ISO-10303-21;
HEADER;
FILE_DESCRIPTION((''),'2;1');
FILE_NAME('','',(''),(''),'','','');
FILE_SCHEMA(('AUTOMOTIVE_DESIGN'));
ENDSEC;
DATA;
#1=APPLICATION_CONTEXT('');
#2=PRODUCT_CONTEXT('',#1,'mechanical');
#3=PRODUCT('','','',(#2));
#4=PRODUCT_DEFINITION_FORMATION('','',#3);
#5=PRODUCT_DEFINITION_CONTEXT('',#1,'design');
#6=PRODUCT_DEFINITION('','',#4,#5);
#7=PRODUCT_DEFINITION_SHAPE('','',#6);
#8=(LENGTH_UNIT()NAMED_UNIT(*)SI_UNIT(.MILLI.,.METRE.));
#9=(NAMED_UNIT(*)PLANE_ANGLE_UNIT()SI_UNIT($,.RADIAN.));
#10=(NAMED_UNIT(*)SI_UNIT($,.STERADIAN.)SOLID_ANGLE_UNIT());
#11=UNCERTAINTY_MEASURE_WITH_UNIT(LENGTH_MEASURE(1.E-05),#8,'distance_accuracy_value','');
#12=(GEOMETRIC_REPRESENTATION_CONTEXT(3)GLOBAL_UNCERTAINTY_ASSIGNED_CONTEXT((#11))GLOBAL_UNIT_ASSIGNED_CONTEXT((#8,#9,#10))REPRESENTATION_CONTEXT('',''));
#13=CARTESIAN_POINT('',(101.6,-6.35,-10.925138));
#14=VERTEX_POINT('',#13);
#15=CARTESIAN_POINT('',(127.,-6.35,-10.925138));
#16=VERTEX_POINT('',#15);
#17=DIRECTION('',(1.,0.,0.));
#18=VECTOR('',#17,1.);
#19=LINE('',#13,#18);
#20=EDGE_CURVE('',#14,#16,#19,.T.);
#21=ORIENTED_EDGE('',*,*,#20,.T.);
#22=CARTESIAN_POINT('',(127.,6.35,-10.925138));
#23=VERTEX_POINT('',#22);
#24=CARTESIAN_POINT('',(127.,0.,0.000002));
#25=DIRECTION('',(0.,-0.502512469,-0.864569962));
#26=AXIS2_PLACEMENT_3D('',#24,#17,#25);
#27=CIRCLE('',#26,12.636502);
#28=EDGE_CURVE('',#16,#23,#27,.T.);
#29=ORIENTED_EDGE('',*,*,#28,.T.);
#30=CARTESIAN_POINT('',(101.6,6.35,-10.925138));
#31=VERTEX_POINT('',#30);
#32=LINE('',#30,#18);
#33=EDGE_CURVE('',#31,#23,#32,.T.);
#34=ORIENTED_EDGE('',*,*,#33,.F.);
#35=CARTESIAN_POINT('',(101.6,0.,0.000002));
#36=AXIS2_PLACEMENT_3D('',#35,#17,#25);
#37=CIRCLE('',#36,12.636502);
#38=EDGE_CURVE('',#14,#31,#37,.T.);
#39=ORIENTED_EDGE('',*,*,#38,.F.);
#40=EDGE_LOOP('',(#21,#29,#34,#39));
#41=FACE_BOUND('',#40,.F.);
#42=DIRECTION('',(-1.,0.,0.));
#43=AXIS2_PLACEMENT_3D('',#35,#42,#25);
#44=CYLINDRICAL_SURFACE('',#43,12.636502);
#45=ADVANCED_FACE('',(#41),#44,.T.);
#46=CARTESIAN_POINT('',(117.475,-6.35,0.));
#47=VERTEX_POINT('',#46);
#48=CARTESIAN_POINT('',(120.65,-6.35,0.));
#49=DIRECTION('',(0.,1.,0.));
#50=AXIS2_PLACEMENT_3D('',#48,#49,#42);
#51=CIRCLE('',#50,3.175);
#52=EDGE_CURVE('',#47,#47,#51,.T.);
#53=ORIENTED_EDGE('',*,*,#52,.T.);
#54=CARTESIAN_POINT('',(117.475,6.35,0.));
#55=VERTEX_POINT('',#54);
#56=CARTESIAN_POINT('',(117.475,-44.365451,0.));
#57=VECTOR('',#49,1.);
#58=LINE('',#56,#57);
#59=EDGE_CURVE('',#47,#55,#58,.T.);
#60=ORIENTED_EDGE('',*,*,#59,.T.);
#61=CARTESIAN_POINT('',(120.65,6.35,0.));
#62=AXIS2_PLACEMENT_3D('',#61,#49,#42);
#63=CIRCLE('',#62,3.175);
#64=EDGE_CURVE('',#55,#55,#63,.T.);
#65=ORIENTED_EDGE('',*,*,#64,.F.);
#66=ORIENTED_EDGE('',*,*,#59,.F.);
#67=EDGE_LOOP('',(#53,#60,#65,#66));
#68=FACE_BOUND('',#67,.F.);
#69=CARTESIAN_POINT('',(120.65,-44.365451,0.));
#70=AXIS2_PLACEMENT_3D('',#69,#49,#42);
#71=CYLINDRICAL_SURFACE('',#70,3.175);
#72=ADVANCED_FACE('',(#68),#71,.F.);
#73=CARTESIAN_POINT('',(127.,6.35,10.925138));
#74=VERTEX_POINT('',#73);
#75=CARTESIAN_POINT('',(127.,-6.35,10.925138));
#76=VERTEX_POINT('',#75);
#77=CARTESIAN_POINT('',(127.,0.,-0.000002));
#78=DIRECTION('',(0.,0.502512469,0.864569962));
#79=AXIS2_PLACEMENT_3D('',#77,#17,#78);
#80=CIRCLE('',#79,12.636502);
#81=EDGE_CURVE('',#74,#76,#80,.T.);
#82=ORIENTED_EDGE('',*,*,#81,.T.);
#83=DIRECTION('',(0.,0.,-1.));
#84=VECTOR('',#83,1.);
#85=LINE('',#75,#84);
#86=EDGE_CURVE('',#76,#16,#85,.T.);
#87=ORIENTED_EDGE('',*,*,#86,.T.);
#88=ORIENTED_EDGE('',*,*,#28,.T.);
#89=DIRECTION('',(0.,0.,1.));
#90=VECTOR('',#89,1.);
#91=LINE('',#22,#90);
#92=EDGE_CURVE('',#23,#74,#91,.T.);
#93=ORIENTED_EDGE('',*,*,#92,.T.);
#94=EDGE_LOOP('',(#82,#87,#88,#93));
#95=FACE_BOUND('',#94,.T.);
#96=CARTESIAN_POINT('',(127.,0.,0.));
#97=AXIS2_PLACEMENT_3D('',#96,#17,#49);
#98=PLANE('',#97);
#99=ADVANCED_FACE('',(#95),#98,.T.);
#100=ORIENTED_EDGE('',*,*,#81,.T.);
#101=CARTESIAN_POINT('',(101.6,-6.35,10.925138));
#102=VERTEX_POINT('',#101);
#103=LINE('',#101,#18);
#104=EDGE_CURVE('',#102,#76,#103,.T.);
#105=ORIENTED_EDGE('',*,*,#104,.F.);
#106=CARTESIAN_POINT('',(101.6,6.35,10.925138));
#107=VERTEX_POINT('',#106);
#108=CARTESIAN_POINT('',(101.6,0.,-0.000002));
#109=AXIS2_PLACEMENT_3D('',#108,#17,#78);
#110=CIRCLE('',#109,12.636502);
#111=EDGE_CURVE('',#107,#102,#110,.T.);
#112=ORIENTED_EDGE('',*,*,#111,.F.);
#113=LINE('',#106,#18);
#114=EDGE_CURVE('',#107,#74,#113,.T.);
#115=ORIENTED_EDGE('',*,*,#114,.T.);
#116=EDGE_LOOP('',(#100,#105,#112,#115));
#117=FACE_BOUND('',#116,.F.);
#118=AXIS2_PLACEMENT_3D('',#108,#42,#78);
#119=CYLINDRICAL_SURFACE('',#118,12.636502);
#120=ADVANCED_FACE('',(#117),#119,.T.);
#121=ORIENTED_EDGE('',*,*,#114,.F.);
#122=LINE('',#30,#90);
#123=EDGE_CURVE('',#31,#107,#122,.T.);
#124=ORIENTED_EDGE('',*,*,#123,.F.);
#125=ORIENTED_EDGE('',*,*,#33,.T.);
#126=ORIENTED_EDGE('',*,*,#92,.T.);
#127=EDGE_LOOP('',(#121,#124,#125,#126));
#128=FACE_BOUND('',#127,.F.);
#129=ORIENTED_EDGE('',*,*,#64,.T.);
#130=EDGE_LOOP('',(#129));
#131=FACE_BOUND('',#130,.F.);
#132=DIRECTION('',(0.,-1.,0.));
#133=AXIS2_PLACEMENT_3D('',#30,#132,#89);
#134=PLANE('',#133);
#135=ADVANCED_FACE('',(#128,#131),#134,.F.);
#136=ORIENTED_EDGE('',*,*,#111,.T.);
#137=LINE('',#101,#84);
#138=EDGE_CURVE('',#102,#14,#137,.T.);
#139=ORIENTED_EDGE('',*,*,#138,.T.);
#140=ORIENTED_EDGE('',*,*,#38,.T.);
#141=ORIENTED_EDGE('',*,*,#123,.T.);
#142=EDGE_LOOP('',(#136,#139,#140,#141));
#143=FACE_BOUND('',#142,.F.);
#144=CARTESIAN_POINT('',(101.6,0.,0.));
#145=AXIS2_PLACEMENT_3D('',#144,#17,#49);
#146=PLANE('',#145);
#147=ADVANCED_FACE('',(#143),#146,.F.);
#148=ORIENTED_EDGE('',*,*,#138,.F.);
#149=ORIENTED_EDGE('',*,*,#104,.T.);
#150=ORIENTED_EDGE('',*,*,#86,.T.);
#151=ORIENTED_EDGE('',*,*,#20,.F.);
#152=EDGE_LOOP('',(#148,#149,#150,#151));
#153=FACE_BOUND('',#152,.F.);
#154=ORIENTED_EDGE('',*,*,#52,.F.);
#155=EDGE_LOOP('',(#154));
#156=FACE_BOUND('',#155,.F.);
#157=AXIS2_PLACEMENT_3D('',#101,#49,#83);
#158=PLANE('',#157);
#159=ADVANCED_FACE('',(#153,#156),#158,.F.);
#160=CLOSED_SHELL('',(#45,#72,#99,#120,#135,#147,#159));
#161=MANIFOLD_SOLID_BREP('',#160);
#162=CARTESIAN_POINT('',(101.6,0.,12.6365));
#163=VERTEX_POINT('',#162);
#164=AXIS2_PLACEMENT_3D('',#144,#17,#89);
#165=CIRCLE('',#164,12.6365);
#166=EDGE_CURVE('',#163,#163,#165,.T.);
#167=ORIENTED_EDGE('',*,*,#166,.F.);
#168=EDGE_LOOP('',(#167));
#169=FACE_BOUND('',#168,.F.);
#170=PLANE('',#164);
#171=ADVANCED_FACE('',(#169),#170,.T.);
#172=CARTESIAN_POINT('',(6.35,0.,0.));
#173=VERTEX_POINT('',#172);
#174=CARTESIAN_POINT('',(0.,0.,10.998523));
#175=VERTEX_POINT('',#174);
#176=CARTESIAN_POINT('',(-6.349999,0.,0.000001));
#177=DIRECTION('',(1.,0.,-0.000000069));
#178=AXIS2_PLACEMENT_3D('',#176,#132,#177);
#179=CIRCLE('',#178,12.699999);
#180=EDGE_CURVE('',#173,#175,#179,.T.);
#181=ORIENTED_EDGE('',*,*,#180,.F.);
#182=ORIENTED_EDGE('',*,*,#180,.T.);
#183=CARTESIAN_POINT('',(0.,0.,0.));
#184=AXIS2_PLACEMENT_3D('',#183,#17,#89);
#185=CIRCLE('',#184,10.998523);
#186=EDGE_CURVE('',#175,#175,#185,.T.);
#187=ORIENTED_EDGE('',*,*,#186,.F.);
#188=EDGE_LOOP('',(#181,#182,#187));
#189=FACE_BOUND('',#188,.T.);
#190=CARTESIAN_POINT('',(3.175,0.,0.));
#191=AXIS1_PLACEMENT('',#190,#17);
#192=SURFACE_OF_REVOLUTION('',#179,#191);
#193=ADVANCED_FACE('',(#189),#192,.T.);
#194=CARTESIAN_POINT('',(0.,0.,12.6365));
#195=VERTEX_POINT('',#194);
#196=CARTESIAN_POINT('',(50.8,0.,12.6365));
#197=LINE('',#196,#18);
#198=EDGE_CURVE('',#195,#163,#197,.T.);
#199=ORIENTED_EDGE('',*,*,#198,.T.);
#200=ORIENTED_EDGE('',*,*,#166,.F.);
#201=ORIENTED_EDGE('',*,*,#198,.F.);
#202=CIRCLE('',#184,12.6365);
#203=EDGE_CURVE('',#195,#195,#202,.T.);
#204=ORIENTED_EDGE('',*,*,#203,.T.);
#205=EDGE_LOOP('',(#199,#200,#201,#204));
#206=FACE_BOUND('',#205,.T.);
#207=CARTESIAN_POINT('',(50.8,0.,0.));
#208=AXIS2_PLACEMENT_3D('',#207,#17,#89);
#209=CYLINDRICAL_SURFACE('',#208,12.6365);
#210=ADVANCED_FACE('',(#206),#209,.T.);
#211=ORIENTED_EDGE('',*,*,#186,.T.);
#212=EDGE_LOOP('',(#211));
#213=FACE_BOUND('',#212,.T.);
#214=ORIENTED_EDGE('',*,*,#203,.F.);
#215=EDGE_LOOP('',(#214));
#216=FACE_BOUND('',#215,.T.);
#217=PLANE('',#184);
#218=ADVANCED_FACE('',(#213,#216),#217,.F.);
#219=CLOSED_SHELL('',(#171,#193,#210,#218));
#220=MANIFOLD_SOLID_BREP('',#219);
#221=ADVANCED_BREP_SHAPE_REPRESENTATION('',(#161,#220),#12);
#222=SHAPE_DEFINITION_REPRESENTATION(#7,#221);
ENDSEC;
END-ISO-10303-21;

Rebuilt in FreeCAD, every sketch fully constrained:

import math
import FreeCAD as App
import Part
import Sketcher
from FreeCAD import Vector
Q = App.Units.Quantity

doc = App.newDocument("Part")
body = doc.addObject("PartDesign::Body", "Body")

# Sketch on XZ plane
sketch1 = doc.addObject("Sketcher::SketchObject", "Sketch")
body.addObject(sketch1)
sketch1.AttachmentSupport = (doc.XZ_Plane, [""])
sketch1.MapMode = "FlatFace"
sketch1.addGeometry([
    Part.LineSegment(Vector(0, 13, 0), Vector(0, 0, 0)),
    Part.LineSegment(Vector(0, 0, 0), Vector(102, 0, 0)),
    Part.LineSegment(Vector(102, 0, 0), Vector(102, 13, 0)),
    Part.LineSegment(Vector(102, 13, 0), Vector(0, 13, 0)),
], False)
sketch1.addConstraint([
    Sketcher.Constraint("Coincident", 0, 2, 1, 1),
    Sketcher.Constraint("Coincident", 1, 2, 2, 1),
    Sketcher.Constraint("Coincident", 2, 2, 3, 1),
    Sketcher.Constraint("Coincident", 3, 2, 0, 1),
    Sketcher.Constraint("Vertical", 0),
    Sketcher.Constraint("Horizontal", 1),
    Sketcher.Constraint("Vertical", 2),
    Sketcher.Constraint("Horizontal", 3),
    Sketcher.Constraint("Coincident", 0, 2, -1, 1),
    Sketcher.Constraint("DistanceX", 1, 1, 1, 2, Q("4 in")),
    Sketcher.Constraint("DistanceY", 0, 2, 0, 1, Q("0.4975 in")),
])
revolution = doc.addObject("PartDesign::Revolution", "Revolution")
body.addObject(revolution)
revolution.Profile = sketch1
revolution.ReferenceAxis = (sketch1, ["H_Axis"])
revolution.Angle = 360

# Sketch on XZ plane
sketch2 = doc.addObject("Sketcher::SketchObject", "Sketch001")
body.addObject(sketch2)
sketch2.AttachmentSupport = (doc.XZ_Plane, [""])
sketch2.MapMode = "FlatFace"
sketch2.addGeometry([
    Part.LineSegment(Vector(0, 0, 0), Vector(6, 0, 0)),
    Part.ArcOfCircle(Part.Circle(Vector(-6, 0, 0), Vector(0, 0, 1), 13), math.radians(0), math.radians(60)),
    Part.LineSegment(Vector(0, 11, 0), Vector(0, 0, 0)),
], False)
sketch2.addConstraint([
    Sketcher.Constraint("Coincident", 0, 2, 1, 1),
    Sketcher.Constraint("Coincident", 1, 2, 2, 1),
    Sketcher.Constraint("Coincident", 2, 2, 0, 1),
    Sketcher.Constraint("Horizontal", 0),
    Sketcher.Constraint("Vertical", 2),
    Sketcher.Constraint("Coincident", 2, 2, -1, 1),
    Sketcher.Constraint("PointOnObject", 1, 3, -1),
    Sketcher.Constraint("Radius", 1, Q("0.5 in")),
    Sketcher.Constraint("DistanceX", 0, 1, 0, 2, Q("0.25 in")),
])
groove = doc.addObject("PartDesign::Groove", "Groove")
body.addObject(groove)
groove.Profile = sketch2
groove.ReferenceAxis = (sketch2, ["H_Axis"])
groove.Angle = 360
body2 = doc.addObject("PartDesign::Body", "Body001")

# Sketch on YZ plane
sketch3 = doc.addObject("Sketcher::SketchObject", "Sketch002")
body2.addObject(sketch3)
sketch3.AttachmentSupport = (doc.getObject("YZ_Plane001"), [""])
sketch3.MapMode = "FlatFace"
sketch3.AttachmentOffset = App.Placement(Vector(0, 0, 4 * 25.4), App.Rotation())
sketch3.addGeometry([
    Part.ArcOfCircle(Part.Circle(Vector(0, 0, 0), Vector(0, 0, 1), 13), math.radians(60), math.radians(120)),
    Part.LineSegment(Vector(-6, 11, 0), Vector(-6, -11, 0)),
    Part.ArcOfCircle(Part.Circle(Vector(0, 0, 0), Vector(0, 0, 1), 13), math.radians(-120), math.radians(-60)),
    Part.LineSegment(Vector(6, -11, 0), Vector(6, 11, 0)),
], False)
sketch3.addConstraint([
    Sketcher.Constraint("Coincident", 0, 2, 1, 1),
    Sketcher.Constraint("Coincident", 1, 2, 2, 1),
    Sketcher.Constraint("Coincident", 2, 2, 3, 1),
    Sketcher.Constraint("Coincident", 3, 2, 0, 1),
    Sketcher.Constraint("Vertical", 1),
    Sketcher.Constraint("Vertical", 3),
    Sketcher.Constraint("Coincident", 0, 3, -1, 1),
    Sketcher.Constraint("Coincident", 2, 3, -1, 1),
    Sketcher.Constraint("Equal", 0, 2),
    Sketcher.Constraint("Horizontal", 1, 2, 2, 2),
    Sketcher.Constraint("Radius", 0, Q("0.4975001 in")),
    Sketcher.Constraint("DistanceX", 1, 2, 2, 2, Q("0.5 in")),
])
pad1 = doc.addObject("PartDesign::Pad", "Pad")
body2.addObject(pad1)
pad1.Profile = sketch3
pad1.Length = Q("1 in")

# Sketch on XZ plane
sketch4 = doc.addObject("Sketcher::SketchObject", "Sketch003")
body2.addObject(sketch4)
sketch4.AttachmentSupport = (doc.getObject("XZ_Plane001"), [""])
sketch4.MapMode = "FlatFace"
sketch4.AttachmentOffset = App.Placement(Vector(0, 0, 0.25 * 25.4), App.Rotation())
sketch4.addGeometry(Part.Circle(Vector(120.7, 0, 0), Vector(0, 0, 1), 3.2), False)
sketch4.addConstraint([
    Sketcher.Constraint("PointOnObject", 0, 3, -1),
    Sketcher.Constraint("Diameter", 0, Q("0.25 in")),
    Sketcher.Constraint("DistanceX", -1, 1, 0, 3, Q("4.75 in")),
])
doc.recompute()
hole = doc.addObject("PartDesign::Hole", "Hole")
body2.addObject(hole)
hole.Profile = sketch4
hole.ThreadType = "None"
hole.Diameter = Q("0.25 in")
hole.DepthType = "ThroughAll"

doc.recompute()
